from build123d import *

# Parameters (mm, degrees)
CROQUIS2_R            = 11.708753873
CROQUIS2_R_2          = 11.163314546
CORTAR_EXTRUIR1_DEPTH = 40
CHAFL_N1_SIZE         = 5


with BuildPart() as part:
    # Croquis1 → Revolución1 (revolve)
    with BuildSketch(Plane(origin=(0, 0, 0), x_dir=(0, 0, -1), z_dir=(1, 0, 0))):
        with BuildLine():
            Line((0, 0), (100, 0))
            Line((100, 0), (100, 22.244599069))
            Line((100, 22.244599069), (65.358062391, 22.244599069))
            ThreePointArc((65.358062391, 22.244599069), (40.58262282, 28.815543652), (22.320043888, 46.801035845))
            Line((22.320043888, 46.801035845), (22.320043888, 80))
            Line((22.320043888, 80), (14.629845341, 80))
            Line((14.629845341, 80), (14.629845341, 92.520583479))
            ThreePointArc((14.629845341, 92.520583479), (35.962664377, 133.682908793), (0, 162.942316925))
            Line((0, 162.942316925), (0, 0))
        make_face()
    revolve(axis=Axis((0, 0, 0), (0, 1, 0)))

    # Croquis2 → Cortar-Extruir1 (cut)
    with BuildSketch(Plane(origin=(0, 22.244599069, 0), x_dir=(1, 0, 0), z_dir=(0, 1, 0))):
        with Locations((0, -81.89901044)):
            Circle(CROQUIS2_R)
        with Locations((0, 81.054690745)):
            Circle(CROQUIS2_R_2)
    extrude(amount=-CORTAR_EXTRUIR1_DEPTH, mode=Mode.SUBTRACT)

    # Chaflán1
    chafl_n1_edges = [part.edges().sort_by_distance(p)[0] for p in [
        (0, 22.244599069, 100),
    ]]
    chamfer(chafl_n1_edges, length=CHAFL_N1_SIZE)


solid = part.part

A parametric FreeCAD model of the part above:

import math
import FreeCAD as App
import Part
import Sketcher
from FreeCAD import Vector
Q = App.Units.Quantity


def edges_at(feature, points):
    """Names of the edges that pass closest to the given points."""
    edges = feature.Shape.Edges
    near = lambda p: min(range(len(edges)), key=lambda i: edges[i].distToShape(Part.Vertex(*p))[0])
    return sorted({f"Edge{near(p) + 1}" for p in points})

doc = App.newDocument("Part")
body = doc.addObject("PartDesign::Body", "Body")

# Sketch on YZ plane
sketch1 = body.newObject("Sketcher::SketchObject", "Sketch")
sketch1.AttachmentSupport = (doc.getObject("YZ_Plane"), [""])
sketch1.MapMode = "FlatFace"
sketch1.addGeometry(Part.LineSegment(Vector(0, 0, 0), Vector(0, -100, 0)), False)
sketch1.addGeometry(Part.LineSegment(Vector(0, -100, 0), Vector(22, -100, 0)), False)
sketch1.addGeometry(Part.LineSegment(Vector(22, -100, 0), Vector(22, -65, 0)), False)
sketch1.addGeometry(Part.ArcOfCircle(Part.Circle(Vector(72, -65, 0), Vector(0, 0, 1), 50), math.radians(121), math.radians(180)), False)
sketch1.addGeometry(Part.LineSegment(Vector(47, -22, 0), Vector(80, -22, 0)), False)
sketch1.addGeometry(Part.LineSegment(Vector(80, -22, 0), Vector(80, -15, 0)), False)
sketch1.addGeometry(Part.LineSegment(Vector(80, -15, 0), Vector(93, -15, 0)), False)
sketch1.addGeometry(Part.ArcOfCircle(Part.Circle(Vector(126, 0, 0), Vector(0, 0, 1), 37), math.radians(-157), math.radians(0)), False)
sketch1.addGeometry(Part.LineSegment(Vector(163, 0, 0), Vector(0, 0, 0)), False)
sketch1.addConstraint(Sketcher.Constraint("Coincident", 0, 2, 1, 1))
sketch1.addConstraint(Sketcher.Constraint("Coincident", 1, 2, 2, 1))
sketch1.addConstraint(Sketcher.Constraint("Tangent", 2, 2, 3, 2))
sketch1.addConstraint(Sketcher.Constraint("Coincident", 3, 1, 4, 1))
sketch1.addConstraint(Sketcher.Constraint("Coincident", 4, 2, 5, 1))
sketch1.addConstraint(Sketcher.Constraint("Coincident", 5, 2, 6, 1))
sketch1.addConstraint(Sketcher.Constraint("Coincident", 6, 2, 7, 1))
sketch1.addConstraint(Sketcher.Constraint("Coincident", 7, 2, 8, 1))
sketch1.addConstraint(Sketcher.Constraint("Coincident", 8, 2, 0, 1))
sketch1.addConstraint(Sketcher.Constraint("Vertical", 0))
sketch1.addConstraint(Sketcher.Constraint("Horizontal", 1))
sketch1.addConstraint(Sketcher.Constraint("Vertical", 2))
sketch1.addConstraint(Sketcher.Constraint("Horizontal", 4))
sketch1.addConstraint(Sketcher.Constraint("Vertical", 5))
sketch1.addConstraint(Sketcher.Constraint("Horizontal", 6))
sketch1.addConstraint(Sketcher.Constraint("Horizontal", 8))
sketch1.addConstraint(Sketcher.Constraint("Coincident", 8, 2, -1, 1))
sketch1.addConstraint(Sketcher.Constraint("PointOnObject", 7, 3, -1))
sketch1.addConstraint(Sketcher.Constraint("DistanceY", 0, 2, 0, 1, Q("100 mm")))
sketch1.addConstraint(Sketcher.Constraint("DistanceX", -1, 1, 4, 2, Q("80 mm")))
sketch1.addConstraint(Sketcher.Constraint("Radius", 3, Q("49.992791 mm")))
sketch1.addConstraint(Sketcher.Constraint("DistanceX", 1, 1, 1, 2, Q("22.244599 mm")))
sketch1.addConstraint(Sketcher.Constraint("DistanceY", 5, 1, 5, 2, Q("7.690199 mm")))
sketch1.addConstraint(Sketcher.Constraint("Radius", 7, Q("36.730514 mm")))
sketch1.addConstraint(Sketcher.Constraint("DistanceX", 4, 1, 4, 2, Q("33.198964 mm")))
sketch1.addConstraint(Sketcher.Constraint("DistanceX", 6, 1, 6, 2, Q("12.520583 mm")))
sketch1.addConstraint(Sketcher.Constraint("DistanceX", 8, 2, 8, 1, Q("162.942317 mm")))
revolution = body.newObject("PartDesign::Revolution", "Revolution")
revolution.Profile = sketch1
revolution.ReferenceAxis = (sketch1, ["H_Axis"])
revolution.Angle = 360

# Sketch on XZ plane
sketch2 = body.newObject("Sketcher::SketchObject", "Sketch001")
sketch2.AttachmentSupport = (doc.getObject("XZ_Plane"), [""])
sketch2.MapMode = "FlatFace"
sketch2.AttachmentOffset = App.Placement(Vector(0, 0, -22.244599), App.Rotation())
sketch2.addGeometry(Part.Circle(Vector(0, 82, 0), Vector(0, 0, 1), 12), False)
sketch2.addGeometry(Part.Circle(Vector(0, -81, 0), Vector(0, 0, 1), 11), False)
sketch2.addConstraint(Sketcher.Constraint("PointOnObject", 0, 3, -2))
sketch2.addConstraint(Sketcher.Constraint("PointOnObject", 1, 3, -2))
sketch2.addConstraint(Sketcher.Constraint("Diameter", 1, Q("22.326629 mm")))
sketch2.addConstraint(Sketcher.Constraint("Diameter", 0, Q("23.417508 mm")))
sketch2.addConstraint(Sketcher.Constraint("DistanceY", 1, 3, 0, 3, Q("162.953701 mm")))
sketch2.addConstraint(Sketcher.Constraint("DistanceY", -1, 1, 0, 3, Q("81.89901 mm")))
pocket1 = body.newObject("PartDesign::Pocket", "Pocket")
pocket1.Profile = sketch2
pocket1.Length = 40
pocket1.Reversed = True
doc.recompute()

chamfer = body.newObject("PartDesign::Chamfer", "Chamfer")
chamfer.Base = (pocket1, edges_at(pocket1, [(0, 22.245, 100)]))
chamfer.Size = 5

doc.recompute()
